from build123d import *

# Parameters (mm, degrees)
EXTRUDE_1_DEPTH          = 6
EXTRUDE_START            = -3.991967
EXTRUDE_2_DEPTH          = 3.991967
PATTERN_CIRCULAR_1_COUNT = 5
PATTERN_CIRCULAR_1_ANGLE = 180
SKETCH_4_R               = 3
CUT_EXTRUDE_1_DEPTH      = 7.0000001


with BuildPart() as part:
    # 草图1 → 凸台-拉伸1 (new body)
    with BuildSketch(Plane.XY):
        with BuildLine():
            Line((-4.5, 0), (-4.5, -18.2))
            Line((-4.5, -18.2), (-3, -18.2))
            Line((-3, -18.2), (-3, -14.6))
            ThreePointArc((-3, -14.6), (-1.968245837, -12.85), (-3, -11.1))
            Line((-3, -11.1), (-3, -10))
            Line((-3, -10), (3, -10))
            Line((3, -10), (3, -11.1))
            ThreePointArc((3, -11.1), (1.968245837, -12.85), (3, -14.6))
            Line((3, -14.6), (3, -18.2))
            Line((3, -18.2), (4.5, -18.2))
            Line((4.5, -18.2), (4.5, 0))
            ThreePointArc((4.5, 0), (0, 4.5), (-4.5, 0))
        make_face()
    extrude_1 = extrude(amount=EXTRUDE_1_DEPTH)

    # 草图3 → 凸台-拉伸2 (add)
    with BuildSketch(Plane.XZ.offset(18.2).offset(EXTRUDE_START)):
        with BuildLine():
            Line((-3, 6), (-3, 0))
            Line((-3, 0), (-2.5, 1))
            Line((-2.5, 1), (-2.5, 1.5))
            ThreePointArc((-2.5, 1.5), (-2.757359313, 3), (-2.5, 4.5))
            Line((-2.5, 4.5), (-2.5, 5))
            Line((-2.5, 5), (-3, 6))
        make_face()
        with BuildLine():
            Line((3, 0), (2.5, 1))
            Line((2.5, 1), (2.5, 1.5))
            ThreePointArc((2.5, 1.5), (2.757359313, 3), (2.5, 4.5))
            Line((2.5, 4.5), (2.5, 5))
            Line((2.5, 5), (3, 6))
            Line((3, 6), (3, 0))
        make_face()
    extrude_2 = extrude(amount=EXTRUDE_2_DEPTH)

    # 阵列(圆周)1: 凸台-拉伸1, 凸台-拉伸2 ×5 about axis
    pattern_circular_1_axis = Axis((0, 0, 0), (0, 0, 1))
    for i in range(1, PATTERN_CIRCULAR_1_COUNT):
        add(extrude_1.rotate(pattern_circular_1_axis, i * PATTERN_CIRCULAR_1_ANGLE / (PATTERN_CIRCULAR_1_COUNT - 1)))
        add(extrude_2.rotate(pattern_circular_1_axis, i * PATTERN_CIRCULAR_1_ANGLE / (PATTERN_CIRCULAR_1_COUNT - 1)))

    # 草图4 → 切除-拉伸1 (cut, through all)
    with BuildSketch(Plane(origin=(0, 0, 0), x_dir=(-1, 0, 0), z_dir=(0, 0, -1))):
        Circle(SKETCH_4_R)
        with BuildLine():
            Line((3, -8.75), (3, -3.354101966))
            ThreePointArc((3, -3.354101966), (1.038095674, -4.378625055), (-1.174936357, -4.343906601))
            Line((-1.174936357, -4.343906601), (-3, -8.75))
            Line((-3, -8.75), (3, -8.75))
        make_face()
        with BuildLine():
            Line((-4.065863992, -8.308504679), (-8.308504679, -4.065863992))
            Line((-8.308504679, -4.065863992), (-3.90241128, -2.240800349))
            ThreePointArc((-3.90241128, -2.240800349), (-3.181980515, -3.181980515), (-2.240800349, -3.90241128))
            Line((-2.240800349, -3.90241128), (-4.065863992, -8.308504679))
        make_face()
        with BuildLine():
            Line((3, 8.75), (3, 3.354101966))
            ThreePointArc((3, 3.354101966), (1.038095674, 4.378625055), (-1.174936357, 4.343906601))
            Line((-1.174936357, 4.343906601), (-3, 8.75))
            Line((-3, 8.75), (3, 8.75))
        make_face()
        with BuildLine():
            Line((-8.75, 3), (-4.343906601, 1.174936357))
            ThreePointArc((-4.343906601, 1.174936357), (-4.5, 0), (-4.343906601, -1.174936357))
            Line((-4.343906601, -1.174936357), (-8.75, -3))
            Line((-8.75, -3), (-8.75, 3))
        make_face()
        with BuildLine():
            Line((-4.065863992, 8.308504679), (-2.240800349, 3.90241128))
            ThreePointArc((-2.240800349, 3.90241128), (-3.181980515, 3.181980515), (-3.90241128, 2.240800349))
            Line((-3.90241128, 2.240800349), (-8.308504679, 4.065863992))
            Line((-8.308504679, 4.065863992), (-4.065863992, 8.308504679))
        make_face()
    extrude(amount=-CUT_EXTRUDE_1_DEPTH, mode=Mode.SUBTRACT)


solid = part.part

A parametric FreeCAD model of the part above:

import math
import FreeCAD as App
import Part
import Sketcher

V = App.Vector
Q = App.Units.Quantity

doc = App.newDocument("Part")
body = doc.addObject("PartDesign::Body", "Body")

sketch1 = body.newObject("Sketcher::SketchObject", "Sketch")
sketch1.AttachmentSupport = (doc.getObject("XY_Plane"), [""])
sketch1.MapMode = "FlatFace"
sketch1.addGeometry([
    Part.LineSegment(V(-4.5, 0, 0), V(-4.5, -18.2, 0)),
    Part.LineSegment(V(-4.5, -18.2, 0), V(-3, -18.2, 0)),
    Part.LineSegment(V(-3, -18.2, 0), V(-3, -14.6, 0)),
    Part.ArcOfCircle(Part.Circle(V(-4, -12.8, 0), V(0, 0, 1), 2), math.radians(-61), math.radians(61)),
    Part.LineSegment(V(-3, -11.1, 0), V(-3, -10, 0)),
    Part.LineSegment(V(-3, -10, 0), V(3, -10, 0)),
    Part.LineSegment(V(3, -10, 0), V(3, -11.1, 0)),
    Part.ArcOfCircle(Part.Circle(V(4, -12.8, 0), V(0, 0, 1), 2), math.radians(119), math.radians(241)),
    Part.LineSegment(V(3, -14.6, 0), V(3, -18.2, 0)),
    Part.LineSegment(V(3, -18.2, 0), V(4.5, -18.2, 0)),
    Part.LineSegment(V(4.5, -18.2, 0), V(4.5, 0, 0)),
    Part.ArcOfCircle(Part.Circle(V(0, 0, 0), V(0, 0, 1), 4.5), math.radians(0), math.radians(180)),
], False)
sketch1.addConstraint([
    Sketcher.Constraint("Coincident", 0, 2, 1, 1),
    Sketcher.Constraint("Coincident", 1, 2, 2, 1),
    Sketcher.Constraint("Coincident", 2, 2, 3, 1),
    Sketcher.Constraint("Coincident", 3, 2, 4, 1),
    Sketcher.Constraint("Coincident", 4, 2, 5, 1),
    Sketcher.Constraint("Coincident", 5, 2, 6, 1),
    Sketcher.Constraint("Coincident", 6, 2, 7, 1),
    Sketcher.Constraint("Coincident", 7, 2, 8, 1),
    Sketcher.Constraint("Coincident", 8, 2, 9, 1),
    Sketcher.Constraint("Coincident", 9, 2, 10, 1),
    Sketcher.Constraint("Tangent", 10, 2, 11, 1),
    Sketcher.Constraint("Tangent", 11, 2, 0, 1),
    Sketcher.Constraint("Vertical", 0),
    Sketcher.Constraint("Horizontal", 1),
    Sketcher.Constraint("Vertical", 2),
    Sketcher.Constraint("Vertical", 4),
    Sketcher.Constraint("Horizontal", 5),
    Sketcher.Constraint("Vertical", 6),
    Sketcher.Constraint("Vertical", 8),
    Sketcher.Constraint("Horizontal", 9),
    Sketcher.Constraint("Vertical", 10),
    Sketcher.Constraint("Coincident", 11, 3, -1, 1),
    Sketcher.Constraint("Equal", 3, 7),
    Sketcher.Constraint("Symmetric", 3, 3, 7, 3, -2),
    Sketcher.Constraint("Symmetric", 1, 2, 8, 2, -2),
    Sketcher.Constraint("Horizontal", 3, 2, 6, 2),
    Sketcher.Constraint("Vertical", 2, 2, 3, 2),
    Sketcher.Constraint("Radius", 3, Q("2 mm")),
    Sketcher.Constraint("Radius", 11, Q("4.5 mm")),
    Sketcher.Constraint("DistanceX", 5, 1, 5, 2, Q("6 mm")),
    Sketcher.Constraint("DistanceY", 0, 2, 0, 1, Q("18.2 mm")),
    Sketcher.Constraint("DistanceY", 2, 1, 2, 2, Q("3.6 mm")),
    Sketcher.Constraint("DistanceY", 4, 1, 4, 2, Q("1.1 mm")),
    Sketcher.Constraint("DistanceY", 4, 2, -1, 1, Q("10 mm")),
])
pad1 = body.newObject("PartDesign::Pad", "Pad")
pad1.Profile = sketch1
pad1.Length = 6

sketch2 = body.newObject("Sketcher::SketchObject", "Sketch001")
sketch2.AttachmentSupport = (doc.getObject("XZ_Plane"), [""])
sketch2.MapMode = "FlatFace"
sketch2.AttachmentOffset = App.Placement(V(0, 0, 14.208033), App.Rotation())
sketch2.addGeometry([
    Part.LineSegment(V(-3, 6, 0), V(-3, 0, 0)),
    Part.LineSegment(V(-3, 0, 0), V(-2.5, 1, 0)),
    Part.LineSegment(V(-2.5, 1, 0), V(-2.5, 1.5, 0)),
    Part.ArcOfCircle(Part.Circle(V(1.7, 3, 0), V(0, 0, 1), 4.5), math.radians(161), math.radians(199)),
    Part.LineSegment(V(-2.5, 4.5, 0), V(-2.5, 5, 0)),
    Part.LineSegment(V(-2.5, 5, 0), V(-3, 6, 0)),
    Part.LineSegment(V(2.5, 1, 0), V(3, 0, 0)),
    Part.LineSegment(V(3, 0, 0), V(3, 6, 0)),
    Part.LineSegment(V(3, 6, 0), V(2.5, 5, 0)),
    Part.LineSegment(V(2.5, 5, 0), V(2.5, 4.5, 0)),
    Part.ArcOfCircle(Part.Circle(V(-1.7, 3, 0), V(0, 0, 1), 4.5), math.radians(-19), math.radians(19)),
    Part.LineSegment(V(2.5, 1.5, 0), V(2.5, 1, 0)),
], False)
sketch2.addConstraint([
    Sketcher.Constraint("Coincident", 0, 2, 1, 1),
    Sketcher.Constraint("Coincident", 1, 2, 2, 1),
    Sketcher.Constraint("Coincident", 2, 2, 3, 2),
    Sketcher.Constraint("Coincident", 3, 1, 4, 1),
    Sketcher.Constraint("Coincident", 4, 2, 5, 1),
    Sketcher.Constraint("Coincident", 5, 2, 0, 1),
    Sketcher.Constraint("Coincident", 6, 2, 7, 1),
    Sketcher.Constraint("Coincident", 7, 2, 8, 1),
    Sketcher.Constraint("Coincident", 8, 2, 9, 1),
    Sketcher.Constraint("Coincident", 9, 2, 10, 2),
    Sketcher.Constraint("Coincident", 10, 1, 11, 1),
    Sketcher.Constraint("Coincident", 11, 2, 6, 1),
    Sketcher.Constraint("Vertical", 0),
    Sketcher.Constraint("Vertical", 2),
    Sketcher.Constraint("Vertical", 4),
    Sketcher.Constraint("Vertical", 7),
    Sketcher.Constraint("Vertical", 9),
    Sketcher.Constraint("Vertical", 11),
    Sketcher.Constraint("Equal", 3, 10),
    Sketcher.Constraint("Symmetric", 0, 2, 6, 2, -1, 1),
    Sketcher.Constraint("Symmetric", 3, 3, 10, 3, -2),
    Sketcher.Constraint("Symmetric", 4, 2, 8, 2, -2),
    Sketcher.Constraint("Symmetric", 1, 2, 11, 2, -2),
    Sketcher.Constraint("PointOnObject", 0, 2, -1),
    Sketcher.Constraint("Parallel", 5, 6),
    Sketcher.Constraint("Parallel", 1, 8),
    Sketcher.Constraint("Vertical", 2, 2, 3, 1),
    Sketcher.Constraint("Equal", 2, 4),
    Sketcher.Constraint("Radius", 3, Q("4.5 mm")),
    Sketcher.Constraint("DistanceY", 0, 2, 0, 1, Q("6 mm")),
    Sketcher.Constraint("DistanceY", 2, 1, 2, 2, Q("0.5 mm")),
    Sketcher.Constraint("DistanceX", 0, 2, -1, 1, Q("3 mm")),
    Sketcher.Constraint("DistanceY", -1, 1, 1, 2, Q("1 mm")),
    Sketcher.Constraint("DistanceX", 4, 2, 8, 2, Q("5 mm")),
])
pad2 = body.newObject("PartDesign::Pad", "Pad001")
pad2.Profile = sketch2
pad2.Length = 3.991967
doc.recompute()

polarpattern = body.newObject("PartDesign::PolarPattern", "PolarPattern")
polarpattern.Originals = [pad1, pad2]
polarpattern.Axis = (doc.getObject("Z_Axis"), [""])
polarpattern.Angle = 180
polarpattern.Occurrences = 5
body.Tip = polarpattern

sketch3 = body.newObject("Sketcher::SketchObject", "Sketch002")
sketch3.AttachmentSupport = (doc.getObject("XY_Plane"), [""])
sketch3.MapMode = "FlatFace"
sketch3.addGeometry([
    Part.Circle(V(0, 0, 0), V(0, 0, 1), 3),
    Part.LineSegment(V(-3, -8.8, 0), V(-3, -3.4, 0)),
    Part.ArcOfCircle(Part.Circle(V(0, 0, 0), V(0, 0, 1), 4.5), math.radians(-132), math.radians(-75)),
    Part.LineSegment(V(1.2, -4.3, 0), V(3, -8.8, 0)),
    Part.LineSegment(V(3, -8.8, 0), V(-3, -8.8, 0)),
    Part.LineSegment(V(8.3, -4.1, 0), V(4.1, -8.3, 0)),
    Part.LineSegment(V(4.1, -8.3, 0), V(2.2, -3.9, 0)),
    Part.ArcOfCircle(Part.Circle(V(0, 0, 0), V(0, 0, 1), 4.5), math.radians(-60), math.radians(-30)),
    Part.LineSegment(V(3.9, -2.2, 0), V(8.3, -4.1, 0)),
    Part.LineSegment(V(-3, 3.4, 0), V(-3, 8.8, 0)),
    Part.LineSegment(V(-3, 8.8, 0), V(3, 8.8, 0)),
    Part.LineSegment(V(3, 8.8, 0), V(1.2, 4.3, 0)),
    Part.ArcOfCircle(Part.Circle(V(0, 0, 0), V(0, 0, 1), 4.5), math.radians(75), math.radians(132)),
    Part.LineSegment(V(4.3, 1.2, 0), V(8.8, 3, 0)),
    Part.LineSegment(V(8.8, 3, 0), V(8.8, -3, 0)),
    Part.LineSegment(V(8.8, -3, 0), V(4.3, -1.2, 0)),
    Part.ArcOfCircle(Part.Circle(V(0, 0, 0), V(0, 0, 1), 4.5), math.radians(-15), math.radians(15)),
    Part.LineSegment(V(2.2, 3.9, 0), V(4.1, 8.3, 0)),
    Part.LineSegment(V(4.1, 8.3, 0), V(8.3, 4.1, 0)),
    Part.LineSegment(V(8.3, 4.1, 0), V(3.9, 2.2, 0)),
    Part.ArcOfCircle(Part.Circle(V(0, 0, 0), V(0, 0, 1), 4.5), math.radians(30), math.radians(60)),
], False)
sketch3.addConstraint([
    Sketcher.Constraint("Coincident", 1, 2, 2, 1),
    Sketcher.Constraint("Coincident", 2, 2, 3, 1),
    Sketcher.Constraint("Coincident", 3, 2, 4, 1),
    Sketcher.Constraint("Coincident", 4, 2, 1, 1),
    Sketcher.Constraint("Coincident", 5, 2, 6, 1),
    Sketcher.Constraint("Coincident", 6, 2, 7, 1),
    Sketcher.Constraint("Coincident", 7, 2, 8, 1),
    Sketcher.Constraint("Coincident", 8, 2, 5, 1),
    Sketcher.Constraint("Coincident", 9, 2, 10, 1),
    Sketcher.Constraint("Coincident", 10, 2, 11, 1),
    Sketcher.Constraint("Coincident", 11, 2, 12, 1),
    Sketcher.Constraint("Coincident", 12, 2, 9, 1),
    Sketcher.Constraint("Coincident", 13, 2, 14, 1),
    Sketcher.Constraint("Coincident", 14, 2, 15, 1),
    Sketcher.Constraint("Coincident", 15, 2, 16, 1),
    Sketcher.Constraint("Coincident", 16, 2, 13, 1),
    Sketcher.Constraint("Coincident", 17, 2, 18, 1),
    Sketcher.Constraint("Coincident", 18, 2, 19, 1),
    Sketcher.Constraint("Coincident", 19, 2, 20, 1),
    Sketcher.Constraint("Coincident", 20, 2, 17, 1),
    Sketcher.Constraint("Vertical", 1),
    Sketcher.Constraint("Horizontal", 4),
    Sketcher.Constraint("Vertical", 9),
    Sketcher.Constraint("Horizontal", 10),
    Sketcher.Constraint("Vertical", 14),
    Sketcher.Constraint("Coincident", 0, 3, -1, 1),
    Sketcher.Constraint("Coincident", 2, 3, -1, 1),
    Sketcher.Constraint("Coincident", 7, 3, -1, 1),
    Sketcher.Constraint("Coincident", 12, 3, -1, 1),
    Sketcher.Constraint("Coincident", 16, 3, -1, 1),
    Sketcher.Constraint("Coincident", 20, 3, -1, 1),
    Sketcher.Constraint("Equal", 2, 7),
    Sketcher.Constraint("Equal", 7, 12),
    Sketcher.Constraint("Equal", 12, 16),
    Sketcher.Constraint("Equal", 16, 20),
    Sketcher.Constraint("Symmetric", 3, 2, 9, 2, -1, 1),
    Sketcher.Constraint("Symmetric", 5, 2, 17, 2, -1),
    Sketcher.Constraint("Symmetric", 8, 2, 18, 2, -1),
    Sketcher.Constraint("Parallel", 3, 6),
    Sketcher.Constraint("Perpendicular", 8, 11),
    Sketcher.Constraint("Perpendicular", 6, 13),
    Sketcher.Constraint("Perpendicular", 11, 15),
    Sketcher.Constraint("Perpendicular", 15, 17),
    Sketcher.Constraint("Perpendicular", 5, 18),
    Sketcher.Constraint("Parallel", 13, 19),
    Sketcher.Constraint("Vertical", 4, 2, 9, 2),
    Sketcher.Constraint("Vertical", 3, 2, 10, 2),
    Sketcher.Constraint("Vertical", 2, 2, 11, 2),
    Sketcher.Constraint("Vertical", 15, 2, 16, 2),
    Sketcher.Constraint("Equal", 10, 14),
    Sketcher.Constraint("Equal", 3, 6),
    Sketcher.Constraint("Equal", 6, 8),
    Sketcher.Constraint("Equal", 11, 13),
    Sketcher.Constraint("Diameter", 0, Q("6 mm")),
    Sketcher.Constraint("Radius", 2, Q("4.5 mm")),
    Sketcher.Constraint("DistanceX", 4, 2, 4, 1, Q("6 mm")),
    Sketcher.Constraint("Distance", 5, Q("6 mm")),
    Sketcher.Constraint("Angle", 3, Q("-67.5 deg")),
    Sketcher.Constraint("DistanceY", 3, 2, -1, 1, Q("8.75 mm")),
])
pocket1 = body.newObject("PartDesign::Pocket", "Pocket")
pocket1.Profile = sketch3
pocket1.Type = "ThroughAll"
pocket1.Reversed = True

doc.recompute()
